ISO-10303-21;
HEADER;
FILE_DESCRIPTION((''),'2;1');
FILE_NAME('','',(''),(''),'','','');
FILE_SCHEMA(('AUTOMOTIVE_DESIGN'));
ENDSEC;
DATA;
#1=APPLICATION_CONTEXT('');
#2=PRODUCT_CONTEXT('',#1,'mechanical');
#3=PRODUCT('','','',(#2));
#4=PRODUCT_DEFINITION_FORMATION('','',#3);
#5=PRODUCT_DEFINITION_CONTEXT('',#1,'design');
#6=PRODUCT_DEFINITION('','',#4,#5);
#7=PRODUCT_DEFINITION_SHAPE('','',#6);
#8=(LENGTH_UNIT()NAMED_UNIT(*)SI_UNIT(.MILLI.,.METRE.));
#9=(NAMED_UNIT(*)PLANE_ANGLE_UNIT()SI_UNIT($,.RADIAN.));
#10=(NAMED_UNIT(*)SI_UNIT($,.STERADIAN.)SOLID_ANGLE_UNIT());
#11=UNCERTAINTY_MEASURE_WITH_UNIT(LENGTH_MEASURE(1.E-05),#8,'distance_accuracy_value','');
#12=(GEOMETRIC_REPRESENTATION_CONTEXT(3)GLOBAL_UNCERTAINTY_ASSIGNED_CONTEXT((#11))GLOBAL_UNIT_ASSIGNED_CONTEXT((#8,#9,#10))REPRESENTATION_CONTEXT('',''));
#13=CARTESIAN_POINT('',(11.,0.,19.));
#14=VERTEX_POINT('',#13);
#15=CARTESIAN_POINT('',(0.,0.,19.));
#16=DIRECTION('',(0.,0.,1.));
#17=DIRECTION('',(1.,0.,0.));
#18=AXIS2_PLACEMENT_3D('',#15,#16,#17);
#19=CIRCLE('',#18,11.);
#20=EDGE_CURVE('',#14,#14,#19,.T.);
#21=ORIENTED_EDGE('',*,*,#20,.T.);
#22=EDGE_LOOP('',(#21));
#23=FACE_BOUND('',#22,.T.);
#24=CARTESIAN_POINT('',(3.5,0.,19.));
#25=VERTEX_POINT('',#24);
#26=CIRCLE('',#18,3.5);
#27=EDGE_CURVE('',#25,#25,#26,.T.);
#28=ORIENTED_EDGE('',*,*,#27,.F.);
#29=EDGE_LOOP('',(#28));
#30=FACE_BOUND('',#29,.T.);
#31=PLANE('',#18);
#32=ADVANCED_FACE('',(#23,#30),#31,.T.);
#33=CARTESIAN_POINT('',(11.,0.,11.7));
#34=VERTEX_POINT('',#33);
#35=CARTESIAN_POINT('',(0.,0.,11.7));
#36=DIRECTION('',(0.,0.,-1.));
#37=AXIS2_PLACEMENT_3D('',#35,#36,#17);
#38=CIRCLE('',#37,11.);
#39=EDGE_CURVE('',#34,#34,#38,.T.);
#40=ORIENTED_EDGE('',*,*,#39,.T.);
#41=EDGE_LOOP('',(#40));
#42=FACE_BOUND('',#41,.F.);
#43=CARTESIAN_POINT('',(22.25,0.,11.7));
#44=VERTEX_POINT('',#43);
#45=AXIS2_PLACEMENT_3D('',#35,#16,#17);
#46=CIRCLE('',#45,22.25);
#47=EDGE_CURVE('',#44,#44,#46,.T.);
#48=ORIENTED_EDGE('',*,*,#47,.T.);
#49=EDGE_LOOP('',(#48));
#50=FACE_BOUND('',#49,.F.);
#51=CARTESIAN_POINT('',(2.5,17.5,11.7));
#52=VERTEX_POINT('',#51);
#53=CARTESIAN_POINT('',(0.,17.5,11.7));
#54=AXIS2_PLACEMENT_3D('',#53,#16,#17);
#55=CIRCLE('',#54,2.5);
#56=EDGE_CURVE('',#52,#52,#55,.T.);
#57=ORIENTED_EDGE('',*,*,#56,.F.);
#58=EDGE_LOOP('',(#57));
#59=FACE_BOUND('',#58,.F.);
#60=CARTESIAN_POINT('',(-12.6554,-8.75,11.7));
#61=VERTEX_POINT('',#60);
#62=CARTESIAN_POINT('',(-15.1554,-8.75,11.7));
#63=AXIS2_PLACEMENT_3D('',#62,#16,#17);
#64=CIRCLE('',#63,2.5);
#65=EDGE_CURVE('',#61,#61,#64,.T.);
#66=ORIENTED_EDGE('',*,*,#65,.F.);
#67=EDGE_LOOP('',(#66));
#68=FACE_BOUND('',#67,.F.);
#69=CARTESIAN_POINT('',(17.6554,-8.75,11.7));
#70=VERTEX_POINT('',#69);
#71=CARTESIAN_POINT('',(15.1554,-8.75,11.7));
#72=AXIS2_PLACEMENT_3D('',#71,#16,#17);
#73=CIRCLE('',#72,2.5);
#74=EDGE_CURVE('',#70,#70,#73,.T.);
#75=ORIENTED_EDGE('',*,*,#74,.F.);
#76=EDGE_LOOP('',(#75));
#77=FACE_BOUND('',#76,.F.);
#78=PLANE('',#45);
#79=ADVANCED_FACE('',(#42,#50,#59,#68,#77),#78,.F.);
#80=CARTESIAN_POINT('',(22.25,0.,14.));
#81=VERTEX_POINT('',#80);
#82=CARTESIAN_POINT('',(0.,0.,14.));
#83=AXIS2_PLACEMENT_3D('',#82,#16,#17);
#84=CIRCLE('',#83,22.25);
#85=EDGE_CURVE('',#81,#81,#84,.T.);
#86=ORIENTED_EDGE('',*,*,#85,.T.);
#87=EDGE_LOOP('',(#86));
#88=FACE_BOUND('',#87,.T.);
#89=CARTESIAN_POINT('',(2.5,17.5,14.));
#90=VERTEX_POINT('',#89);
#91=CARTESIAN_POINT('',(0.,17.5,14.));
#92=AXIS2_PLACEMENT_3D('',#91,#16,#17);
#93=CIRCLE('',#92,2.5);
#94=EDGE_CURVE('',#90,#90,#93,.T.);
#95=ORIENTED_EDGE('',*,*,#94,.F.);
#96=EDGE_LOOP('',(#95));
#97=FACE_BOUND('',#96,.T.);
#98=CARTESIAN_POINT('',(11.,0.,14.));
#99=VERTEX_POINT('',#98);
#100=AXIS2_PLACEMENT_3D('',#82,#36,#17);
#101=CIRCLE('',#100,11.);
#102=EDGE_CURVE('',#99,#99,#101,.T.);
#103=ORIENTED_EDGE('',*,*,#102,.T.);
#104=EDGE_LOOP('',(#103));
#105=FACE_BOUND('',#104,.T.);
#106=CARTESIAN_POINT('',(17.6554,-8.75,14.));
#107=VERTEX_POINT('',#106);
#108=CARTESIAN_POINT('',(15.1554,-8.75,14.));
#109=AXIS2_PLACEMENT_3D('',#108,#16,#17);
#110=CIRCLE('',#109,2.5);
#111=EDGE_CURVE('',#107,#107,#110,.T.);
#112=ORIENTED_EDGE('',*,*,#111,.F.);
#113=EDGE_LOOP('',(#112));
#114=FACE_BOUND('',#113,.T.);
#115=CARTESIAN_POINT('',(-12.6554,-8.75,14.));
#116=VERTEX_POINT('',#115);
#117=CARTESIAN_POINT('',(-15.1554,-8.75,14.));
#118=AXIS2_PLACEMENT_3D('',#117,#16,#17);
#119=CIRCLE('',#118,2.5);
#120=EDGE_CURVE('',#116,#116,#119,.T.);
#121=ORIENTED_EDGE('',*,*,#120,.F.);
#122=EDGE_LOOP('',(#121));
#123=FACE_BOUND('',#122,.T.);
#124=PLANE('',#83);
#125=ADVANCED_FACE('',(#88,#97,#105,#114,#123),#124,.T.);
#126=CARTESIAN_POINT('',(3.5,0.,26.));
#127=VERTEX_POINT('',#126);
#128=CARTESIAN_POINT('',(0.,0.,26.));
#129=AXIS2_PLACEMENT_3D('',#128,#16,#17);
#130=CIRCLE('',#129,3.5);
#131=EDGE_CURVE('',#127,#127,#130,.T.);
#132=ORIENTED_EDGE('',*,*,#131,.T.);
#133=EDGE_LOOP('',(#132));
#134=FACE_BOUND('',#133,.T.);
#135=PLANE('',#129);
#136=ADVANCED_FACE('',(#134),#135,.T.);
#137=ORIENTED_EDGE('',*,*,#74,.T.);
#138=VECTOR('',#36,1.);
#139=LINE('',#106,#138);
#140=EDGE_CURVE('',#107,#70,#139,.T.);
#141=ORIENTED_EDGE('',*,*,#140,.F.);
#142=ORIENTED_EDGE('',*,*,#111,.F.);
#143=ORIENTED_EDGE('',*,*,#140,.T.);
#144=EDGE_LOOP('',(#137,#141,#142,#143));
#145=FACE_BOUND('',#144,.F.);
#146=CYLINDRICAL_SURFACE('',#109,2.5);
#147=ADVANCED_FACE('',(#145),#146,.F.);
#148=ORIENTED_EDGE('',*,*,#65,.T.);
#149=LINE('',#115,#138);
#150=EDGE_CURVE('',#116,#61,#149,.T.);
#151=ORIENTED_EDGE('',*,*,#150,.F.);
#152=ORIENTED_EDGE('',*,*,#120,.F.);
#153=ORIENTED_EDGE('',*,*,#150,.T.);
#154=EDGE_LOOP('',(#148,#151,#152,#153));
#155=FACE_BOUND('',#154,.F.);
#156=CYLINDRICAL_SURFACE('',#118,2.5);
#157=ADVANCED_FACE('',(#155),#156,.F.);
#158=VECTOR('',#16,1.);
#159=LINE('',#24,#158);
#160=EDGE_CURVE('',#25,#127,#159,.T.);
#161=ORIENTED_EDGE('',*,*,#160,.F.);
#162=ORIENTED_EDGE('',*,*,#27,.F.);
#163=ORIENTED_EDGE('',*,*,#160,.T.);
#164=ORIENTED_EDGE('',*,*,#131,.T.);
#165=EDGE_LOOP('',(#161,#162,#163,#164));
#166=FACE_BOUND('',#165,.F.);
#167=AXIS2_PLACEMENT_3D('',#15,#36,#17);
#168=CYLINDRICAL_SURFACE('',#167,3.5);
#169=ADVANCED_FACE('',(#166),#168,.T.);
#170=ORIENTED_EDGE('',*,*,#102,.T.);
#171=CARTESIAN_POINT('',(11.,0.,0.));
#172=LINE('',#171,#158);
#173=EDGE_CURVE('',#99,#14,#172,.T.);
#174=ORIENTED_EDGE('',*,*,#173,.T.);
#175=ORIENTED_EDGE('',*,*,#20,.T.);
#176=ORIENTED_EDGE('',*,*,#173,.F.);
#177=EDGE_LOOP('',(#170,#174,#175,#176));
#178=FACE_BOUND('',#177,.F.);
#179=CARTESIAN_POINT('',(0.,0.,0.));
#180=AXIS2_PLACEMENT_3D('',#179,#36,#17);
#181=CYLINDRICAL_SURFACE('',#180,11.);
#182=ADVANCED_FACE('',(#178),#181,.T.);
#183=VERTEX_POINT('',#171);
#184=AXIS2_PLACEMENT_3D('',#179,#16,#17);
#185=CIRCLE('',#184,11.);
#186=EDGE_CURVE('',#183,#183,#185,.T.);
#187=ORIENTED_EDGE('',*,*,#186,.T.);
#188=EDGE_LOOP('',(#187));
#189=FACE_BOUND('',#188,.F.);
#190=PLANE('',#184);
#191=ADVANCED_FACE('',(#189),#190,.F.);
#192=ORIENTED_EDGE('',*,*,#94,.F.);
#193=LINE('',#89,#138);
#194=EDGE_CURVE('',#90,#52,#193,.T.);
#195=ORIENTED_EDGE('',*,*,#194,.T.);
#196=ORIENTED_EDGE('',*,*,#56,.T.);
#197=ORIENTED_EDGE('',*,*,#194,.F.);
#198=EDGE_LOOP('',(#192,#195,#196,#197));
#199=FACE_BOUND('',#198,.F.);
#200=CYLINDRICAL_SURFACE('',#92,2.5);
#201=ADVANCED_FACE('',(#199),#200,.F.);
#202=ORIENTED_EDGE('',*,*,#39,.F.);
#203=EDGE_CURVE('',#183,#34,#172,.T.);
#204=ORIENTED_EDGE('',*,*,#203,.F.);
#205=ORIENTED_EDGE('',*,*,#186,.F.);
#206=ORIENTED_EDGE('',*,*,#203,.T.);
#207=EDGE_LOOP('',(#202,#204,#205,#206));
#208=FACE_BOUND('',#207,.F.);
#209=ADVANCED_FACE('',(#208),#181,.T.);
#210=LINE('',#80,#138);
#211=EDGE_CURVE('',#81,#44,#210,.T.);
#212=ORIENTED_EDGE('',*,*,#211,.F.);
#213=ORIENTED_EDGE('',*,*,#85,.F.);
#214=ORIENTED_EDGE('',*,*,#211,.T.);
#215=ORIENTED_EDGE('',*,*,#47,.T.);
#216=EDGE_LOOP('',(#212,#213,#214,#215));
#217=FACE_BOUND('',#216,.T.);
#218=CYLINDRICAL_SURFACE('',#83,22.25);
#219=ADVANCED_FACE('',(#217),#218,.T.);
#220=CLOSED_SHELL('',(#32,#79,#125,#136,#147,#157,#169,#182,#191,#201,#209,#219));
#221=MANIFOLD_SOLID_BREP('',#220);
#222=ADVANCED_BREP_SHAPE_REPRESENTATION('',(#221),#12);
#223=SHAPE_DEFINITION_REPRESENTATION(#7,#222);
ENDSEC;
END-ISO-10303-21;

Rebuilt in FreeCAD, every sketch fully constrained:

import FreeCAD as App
import Part
import Sketcher
from FreeCAD import Vector

doc = App.newDocument("Part")
body = doc.addObject("PartDesign::Body", "Body")

# Sketch on XY plane
sketch1 = body.newObject("Sketcher::SketchObject", "Sketch")
sketch1.AttachmentSupport = (doc.getObject("XY_Plane"), [""])
sketch1.MapMode = "FlatFace"
sketch1.addGeometry(Part.Circle(Vector(0, 0, 0), Vector(0, 0, 1), 11), False)
sketch1.addConstraint([
    Sketcher.Constraint("Coincident", 0, 3, -1, 1),
    Sketcher.Constraint("Diameter", 0, 22.0),
])
pad1 = body.newObject("PartDesign::Pad", "Pad")
pad1.Profile = sketch1
pad1.Length = 19

# Sketch on XY plane
sketch2 = body.newObject("Sketcher::SketchObject", "Sketch001")
sketch2.AttachmentSupport = (doc.getObject("XY_Plane"), [""])
sketch2.MapMode = "FlatFace"
sketch2.AttachmentOffset = App.Placement(Vector(0, 0, 14), App.Rotation())
sketch2.addGeometry([
    Part.Circle(Vector(0, 0, 0), Vector(0, 0, 1), 22.2),
    Part.Circle(Vector(-15.2, -8.8, 0), Vector(0, 0, 1), 2.5),
    Part.Circle(Vector(15.2, -8.8, 0), Vector(0, 0, 1), 2.5),
    Part.Circle(Vector(0, 17.5, 0), Vector(0, 0, 1), 2.5),
], False)
sketch2.addConstraint([
    Sketcher.Constraint("Coincident", 0, 3, -1, 1),
    Sketcher.Constraint("Equal", 1, 2),
    Sketcher.Constraint("Equal", 2, 3),
    Sketcher.Constraint("Symmetric", 1, 3, 2, 3, -2),
    Sketcher.Constraint("PointOnObject", 3, 3, -2),
    Sketcher.Constraint("Diameter", 1, 5.0),
    Sketcher.Constraint("Diameter", 0, 44.5),
    Sketcher.Constraint("DistanceY", -1, 1, 3, 3, 17.5),
    Sketcher.Constraint("DistanceY", 1, 3, -1, 1, 8.75),
    Sketcher.Constraint("DistanceX", 1, 3, -1, 1, 15.1554),
])
pad2 = body.newObject("PartDesign::Pad", "Pad001")
pad2.Profile = sketch2
pad2.Length = 2.3
pad2.Reversed = True

# Sketch on XY plane
sketch3 = body.newObject("Sketcher::SketchObject", "Sketch002")
sketch3.AttachmentSupport = (doc.getObject("XY_Plane"), [""])
sketch3.MapMode = "FlatFace"
sketch3.AttachmentOffset = App.Placement(Vector(0, 0, 19), App.Rotation())
sketch3.addGeometry(Part.Circle(Vector(0, 0, 0), Vector(0, 0, 1), 3.5), False)
sketch3.addConstraint([
    Sketcher.Constraint("Coincident", 0, 3, -1, 1),
    Sketcher.Constraint("Diameter", 0, 7.0),
])
pad3 = body.newObject("PartDesign::Pad", "Pad002")
pad3.Profile = sketch3
pad3.Length = 7

doc.recompute()
